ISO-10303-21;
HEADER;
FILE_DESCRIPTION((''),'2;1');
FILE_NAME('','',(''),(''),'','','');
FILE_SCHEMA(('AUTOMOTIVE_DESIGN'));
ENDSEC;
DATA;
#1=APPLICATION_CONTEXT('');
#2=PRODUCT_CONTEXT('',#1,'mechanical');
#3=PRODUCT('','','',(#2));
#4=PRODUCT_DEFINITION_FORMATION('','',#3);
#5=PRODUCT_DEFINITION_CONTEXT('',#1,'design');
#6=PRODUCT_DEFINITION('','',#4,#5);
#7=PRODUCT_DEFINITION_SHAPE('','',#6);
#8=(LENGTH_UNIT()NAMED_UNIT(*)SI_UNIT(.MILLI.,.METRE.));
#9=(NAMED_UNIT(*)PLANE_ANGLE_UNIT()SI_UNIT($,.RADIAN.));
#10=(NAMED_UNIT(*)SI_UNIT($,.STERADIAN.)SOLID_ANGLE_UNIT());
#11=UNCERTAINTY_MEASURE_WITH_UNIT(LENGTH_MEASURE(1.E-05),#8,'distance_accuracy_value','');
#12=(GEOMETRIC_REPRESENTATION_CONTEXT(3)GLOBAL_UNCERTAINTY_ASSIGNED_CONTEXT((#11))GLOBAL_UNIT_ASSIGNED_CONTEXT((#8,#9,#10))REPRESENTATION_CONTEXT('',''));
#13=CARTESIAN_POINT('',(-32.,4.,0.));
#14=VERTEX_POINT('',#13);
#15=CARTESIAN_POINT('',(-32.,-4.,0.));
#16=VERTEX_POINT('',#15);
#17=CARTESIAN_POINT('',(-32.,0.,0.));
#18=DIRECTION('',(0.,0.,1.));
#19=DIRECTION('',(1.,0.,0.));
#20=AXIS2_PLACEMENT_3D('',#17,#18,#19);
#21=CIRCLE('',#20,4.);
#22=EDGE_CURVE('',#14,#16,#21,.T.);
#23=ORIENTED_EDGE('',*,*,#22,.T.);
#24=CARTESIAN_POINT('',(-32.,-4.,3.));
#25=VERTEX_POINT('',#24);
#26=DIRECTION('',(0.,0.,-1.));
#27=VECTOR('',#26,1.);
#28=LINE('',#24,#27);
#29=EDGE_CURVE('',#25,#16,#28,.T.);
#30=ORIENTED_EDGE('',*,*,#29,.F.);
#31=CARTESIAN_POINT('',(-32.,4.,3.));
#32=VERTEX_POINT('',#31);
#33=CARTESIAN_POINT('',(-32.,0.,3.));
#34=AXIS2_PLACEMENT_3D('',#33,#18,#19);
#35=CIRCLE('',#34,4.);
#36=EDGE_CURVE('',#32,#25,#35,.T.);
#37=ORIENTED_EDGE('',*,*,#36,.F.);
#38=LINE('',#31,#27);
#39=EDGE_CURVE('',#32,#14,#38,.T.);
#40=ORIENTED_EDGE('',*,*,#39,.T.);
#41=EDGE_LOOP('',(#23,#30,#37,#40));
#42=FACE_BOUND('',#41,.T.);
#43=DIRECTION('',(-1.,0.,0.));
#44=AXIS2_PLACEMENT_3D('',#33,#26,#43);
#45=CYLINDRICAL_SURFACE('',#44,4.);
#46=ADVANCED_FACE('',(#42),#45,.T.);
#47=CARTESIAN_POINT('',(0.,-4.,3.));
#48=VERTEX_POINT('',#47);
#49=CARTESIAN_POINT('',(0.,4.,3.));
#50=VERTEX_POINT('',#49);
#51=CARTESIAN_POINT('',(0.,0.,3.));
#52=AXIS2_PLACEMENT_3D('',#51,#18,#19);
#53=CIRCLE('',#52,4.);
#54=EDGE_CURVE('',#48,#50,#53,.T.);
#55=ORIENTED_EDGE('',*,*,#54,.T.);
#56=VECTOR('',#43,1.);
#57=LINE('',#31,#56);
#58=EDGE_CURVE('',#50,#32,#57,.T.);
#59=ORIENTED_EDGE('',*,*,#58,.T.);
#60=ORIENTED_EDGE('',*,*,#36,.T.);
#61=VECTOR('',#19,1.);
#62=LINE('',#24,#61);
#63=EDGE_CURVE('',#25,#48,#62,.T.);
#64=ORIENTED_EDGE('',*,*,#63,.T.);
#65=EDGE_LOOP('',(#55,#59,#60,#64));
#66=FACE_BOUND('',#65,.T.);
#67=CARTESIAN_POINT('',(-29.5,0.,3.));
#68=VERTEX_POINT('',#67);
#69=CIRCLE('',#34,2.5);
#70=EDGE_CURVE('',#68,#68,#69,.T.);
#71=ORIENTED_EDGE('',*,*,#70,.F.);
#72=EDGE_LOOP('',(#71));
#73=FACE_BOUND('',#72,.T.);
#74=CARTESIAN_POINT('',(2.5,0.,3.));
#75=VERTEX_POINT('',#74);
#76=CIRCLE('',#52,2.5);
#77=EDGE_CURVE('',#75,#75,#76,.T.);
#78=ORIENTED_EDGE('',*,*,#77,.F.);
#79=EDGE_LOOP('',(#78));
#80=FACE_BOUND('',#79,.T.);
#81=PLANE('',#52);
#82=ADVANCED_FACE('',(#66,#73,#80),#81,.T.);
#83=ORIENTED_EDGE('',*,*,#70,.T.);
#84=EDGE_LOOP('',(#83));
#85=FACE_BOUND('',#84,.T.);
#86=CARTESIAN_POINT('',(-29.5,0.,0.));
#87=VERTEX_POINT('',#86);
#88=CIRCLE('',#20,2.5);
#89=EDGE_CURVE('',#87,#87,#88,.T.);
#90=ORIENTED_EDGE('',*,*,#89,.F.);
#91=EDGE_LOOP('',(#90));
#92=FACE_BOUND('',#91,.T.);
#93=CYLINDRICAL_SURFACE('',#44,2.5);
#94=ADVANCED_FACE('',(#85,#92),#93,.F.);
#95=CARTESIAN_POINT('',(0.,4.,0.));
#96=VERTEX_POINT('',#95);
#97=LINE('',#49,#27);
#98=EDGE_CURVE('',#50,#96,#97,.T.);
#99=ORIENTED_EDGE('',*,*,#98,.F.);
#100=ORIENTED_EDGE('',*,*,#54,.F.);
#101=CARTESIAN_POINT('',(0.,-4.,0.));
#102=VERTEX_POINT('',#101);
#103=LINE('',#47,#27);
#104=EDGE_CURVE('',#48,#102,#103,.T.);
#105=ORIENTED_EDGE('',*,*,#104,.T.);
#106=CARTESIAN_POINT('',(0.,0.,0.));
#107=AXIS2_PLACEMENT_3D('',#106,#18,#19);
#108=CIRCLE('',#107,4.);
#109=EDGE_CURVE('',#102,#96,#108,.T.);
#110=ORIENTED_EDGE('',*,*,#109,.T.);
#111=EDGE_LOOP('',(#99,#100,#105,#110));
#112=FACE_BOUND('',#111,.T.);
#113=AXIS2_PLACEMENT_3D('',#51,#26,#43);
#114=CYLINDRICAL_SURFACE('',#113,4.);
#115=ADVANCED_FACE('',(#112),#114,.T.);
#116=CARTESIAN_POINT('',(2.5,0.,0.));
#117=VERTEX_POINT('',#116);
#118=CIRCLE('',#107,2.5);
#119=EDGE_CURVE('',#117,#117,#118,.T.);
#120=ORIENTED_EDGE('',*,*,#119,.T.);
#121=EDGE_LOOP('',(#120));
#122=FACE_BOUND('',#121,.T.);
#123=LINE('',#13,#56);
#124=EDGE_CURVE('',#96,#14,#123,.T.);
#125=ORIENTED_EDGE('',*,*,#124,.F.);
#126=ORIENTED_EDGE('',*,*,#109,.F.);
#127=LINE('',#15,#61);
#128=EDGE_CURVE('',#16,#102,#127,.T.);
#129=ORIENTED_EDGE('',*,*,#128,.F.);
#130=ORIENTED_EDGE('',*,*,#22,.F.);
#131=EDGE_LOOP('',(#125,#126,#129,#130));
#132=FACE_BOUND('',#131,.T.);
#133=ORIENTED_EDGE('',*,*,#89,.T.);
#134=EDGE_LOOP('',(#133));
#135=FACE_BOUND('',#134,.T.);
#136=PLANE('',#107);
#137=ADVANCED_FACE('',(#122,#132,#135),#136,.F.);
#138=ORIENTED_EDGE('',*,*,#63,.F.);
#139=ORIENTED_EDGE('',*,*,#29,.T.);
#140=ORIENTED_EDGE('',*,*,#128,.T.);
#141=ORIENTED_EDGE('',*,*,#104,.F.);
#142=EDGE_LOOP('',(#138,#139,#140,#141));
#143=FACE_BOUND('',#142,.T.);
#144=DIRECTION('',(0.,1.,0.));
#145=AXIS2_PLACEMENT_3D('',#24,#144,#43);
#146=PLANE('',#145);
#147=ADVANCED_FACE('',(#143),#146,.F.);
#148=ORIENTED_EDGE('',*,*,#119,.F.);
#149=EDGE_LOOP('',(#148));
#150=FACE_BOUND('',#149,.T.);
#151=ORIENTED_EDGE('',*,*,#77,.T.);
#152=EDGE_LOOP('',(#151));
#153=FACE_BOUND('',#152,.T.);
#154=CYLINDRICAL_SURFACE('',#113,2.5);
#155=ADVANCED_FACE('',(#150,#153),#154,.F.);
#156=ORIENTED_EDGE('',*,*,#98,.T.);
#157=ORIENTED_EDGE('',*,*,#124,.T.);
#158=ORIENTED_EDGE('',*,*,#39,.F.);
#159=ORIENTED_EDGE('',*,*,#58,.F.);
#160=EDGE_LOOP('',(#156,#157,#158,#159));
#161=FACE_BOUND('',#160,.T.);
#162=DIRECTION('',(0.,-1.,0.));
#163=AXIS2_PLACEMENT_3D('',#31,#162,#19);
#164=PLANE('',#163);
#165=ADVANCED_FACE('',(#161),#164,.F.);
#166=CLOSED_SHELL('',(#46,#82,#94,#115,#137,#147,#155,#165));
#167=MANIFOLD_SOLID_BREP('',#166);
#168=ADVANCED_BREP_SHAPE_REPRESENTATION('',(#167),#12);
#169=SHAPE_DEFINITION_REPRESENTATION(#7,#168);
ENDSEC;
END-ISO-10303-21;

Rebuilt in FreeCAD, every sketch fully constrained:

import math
import FreeCAD as App
import Part
import Sketcher

V = App.Vector
Q = App.Units.Quantity

doc = App.newDocument("Part")
body = doc.addObject("PartDesign::Body", "Body")

# Sketch on XY plane
sketch1 = body.newObject("Sketcher::SketchObject", "Sketch")
sketch1.AttachmentSupport = (doc.getObject("XY_Plane"), [""])
sketch1.MapMode = "FlatFace"
sketch1.addGeometry(Part.LineSegment(V(0, 4, 0), V(-32, 4, 0)), False)
sketch1.addGeometry(Part.ArcOfCircle(Part.Circle(V(-32, 0, 0), V(0, 0, 1), 4), math.radians(90), math.radians(270)), False)
sketch1.addGeometry(Part.LineSegment(V(-32, -4, 0), V(0, -4, 0)), False)
sketch1.addGeometry(Part.ArcOfCircle(Part.Circle(V(0, 0, 0), V(0, 0, 1), 4), math.radians(-90), math.radians(90)), False)
sketch1.addGeometry(Part.Circle(V(0, 0, 0), V(0, 0, 1), 2.5), False)
sketch1.addGeometry(Part.Circle(V(-32, 0, 0), V(0, 0, 1), 2.5), False)
sketch1.addConstraint(Sketcher.Constraint("Tangent", 0, 2, 1, 1))
sketch1.addConstraint(Sketcher.Constraint("Tangent", 1, 2, 2, 1))
sketch1.addConstraint(Sketcher.Constraint("Tangent", 2, 2, 3, 1))
sketch1.addConstraint(Sketcher.Constraint("Tangent", 3, 2, 0, 1))
sketch1.addConstraint(Sketcher.Constraint("Horizontal", 0))
sketch1.addConstraint(Sketcher.Constraint("Horizontal", 2))
sketch1.addConstraint(Sketcher.Constraint("Coincident", 3, 3, -1, 1))
sketch1.addConstraint(Sketcher.Constraint("Coincident", 4, 3, -1, 1))
sketch1.addConstraint(Sketcher.Constraint("Coincident", 5, 3, 1, 3))
sketch1.addConstraint(Sketcher.Constraint("Equal", 4, 5))
sketch1.addConstraint(Sketcher.Constraint("Diameter", 4, Q("5 mm")))
sketch1.addConstraint(Sketcher.Constraint("Radius", 1, Q("4 mm")))
sketch1.addConstraint(Sketcher.Constraint("DistanceX", 0, 2, 0, 1, Q("32 mm")))
pad1 = body.newObject("PartDesign::Pad", "Pad")
pad1.Profile = sketch1
pad1.Length = 3

doc.recompute()
